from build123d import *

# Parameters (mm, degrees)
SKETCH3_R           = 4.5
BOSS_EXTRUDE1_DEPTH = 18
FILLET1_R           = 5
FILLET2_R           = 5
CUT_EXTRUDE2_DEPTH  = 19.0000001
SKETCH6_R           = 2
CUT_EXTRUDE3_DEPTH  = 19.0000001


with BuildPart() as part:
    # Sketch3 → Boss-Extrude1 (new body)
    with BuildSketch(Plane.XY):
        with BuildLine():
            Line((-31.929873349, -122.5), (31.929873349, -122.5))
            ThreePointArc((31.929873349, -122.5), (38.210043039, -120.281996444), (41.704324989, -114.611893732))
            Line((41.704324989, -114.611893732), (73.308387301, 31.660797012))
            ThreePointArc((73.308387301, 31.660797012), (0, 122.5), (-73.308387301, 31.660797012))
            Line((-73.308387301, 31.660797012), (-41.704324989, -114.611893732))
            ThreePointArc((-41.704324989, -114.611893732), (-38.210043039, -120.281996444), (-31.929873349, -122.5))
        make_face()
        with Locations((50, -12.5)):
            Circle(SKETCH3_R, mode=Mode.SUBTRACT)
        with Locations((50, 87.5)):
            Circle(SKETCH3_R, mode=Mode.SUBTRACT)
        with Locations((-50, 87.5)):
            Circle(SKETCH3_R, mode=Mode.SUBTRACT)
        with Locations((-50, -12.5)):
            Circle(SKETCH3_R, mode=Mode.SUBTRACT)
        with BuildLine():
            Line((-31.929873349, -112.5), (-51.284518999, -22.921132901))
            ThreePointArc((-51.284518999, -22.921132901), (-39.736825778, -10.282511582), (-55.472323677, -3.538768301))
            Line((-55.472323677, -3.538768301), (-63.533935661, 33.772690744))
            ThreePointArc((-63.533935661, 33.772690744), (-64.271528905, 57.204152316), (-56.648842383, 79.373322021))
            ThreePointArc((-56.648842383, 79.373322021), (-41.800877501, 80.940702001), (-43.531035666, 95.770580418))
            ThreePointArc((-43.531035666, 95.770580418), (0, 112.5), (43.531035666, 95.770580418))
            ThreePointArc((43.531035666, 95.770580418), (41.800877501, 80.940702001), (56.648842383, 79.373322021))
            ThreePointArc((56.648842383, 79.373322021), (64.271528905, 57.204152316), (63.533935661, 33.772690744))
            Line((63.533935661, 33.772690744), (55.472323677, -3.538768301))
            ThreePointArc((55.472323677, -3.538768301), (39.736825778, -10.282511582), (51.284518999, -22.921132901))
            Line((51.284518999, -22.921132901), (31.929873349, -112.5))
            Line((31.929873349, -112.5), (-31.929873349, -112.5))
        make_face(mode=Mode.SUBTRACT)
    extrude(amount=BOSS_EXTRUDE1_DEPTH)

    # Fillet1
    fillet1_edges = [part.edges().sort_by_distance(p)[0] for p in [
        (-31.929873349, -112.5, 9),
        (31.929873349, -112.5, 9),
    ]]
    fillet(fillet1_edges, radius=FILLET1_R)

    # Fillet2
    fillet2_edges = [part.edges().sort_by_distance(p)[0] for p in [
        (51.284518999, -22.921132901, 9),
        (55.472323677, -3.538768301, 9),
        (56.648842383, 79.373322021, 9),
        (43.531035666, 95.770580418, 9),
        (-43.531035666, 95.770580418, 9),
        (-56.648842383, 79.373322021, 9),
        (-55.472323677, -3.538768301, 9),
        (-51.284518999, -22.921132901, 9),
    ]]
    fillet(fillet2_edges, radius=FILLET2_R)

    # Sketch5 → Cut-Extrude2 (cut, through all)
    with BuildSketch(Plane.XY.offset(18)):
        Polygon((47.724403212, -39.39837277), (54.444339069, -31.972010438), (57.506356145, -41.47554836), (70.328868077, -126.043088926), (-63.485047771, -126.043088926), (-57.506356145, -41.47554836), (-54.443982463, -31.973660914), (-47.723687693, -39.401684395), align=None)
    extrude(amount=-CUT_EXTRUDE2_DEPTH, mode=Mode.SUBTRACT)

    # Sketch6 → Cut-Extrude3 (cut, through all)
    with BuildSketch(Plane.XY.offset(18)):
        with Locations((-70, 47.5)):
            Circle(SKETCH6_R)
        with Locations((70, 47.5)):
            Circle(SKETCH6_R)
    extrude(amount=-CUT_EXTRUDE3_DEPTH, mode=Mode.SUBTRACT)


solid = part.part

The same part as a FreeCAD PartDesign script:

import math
import FreeCAD as App
import Part
import Sketcher

V = App.Vector
Q = App.Units.Quantity


def edges_at(feature, points):
    """Names of the edges that pass closest to the given points."""
    edges = feature.Shape.Edges
    near = lambda p: min(range(len(edges)), key=lambda i: edges[i].distToShape(Part.Vertex(*p))[0])
    return sorted({f"Edge{near(p) + 1}" for p in points})

doc = App.newDocument("Part")
body = doc.addObject("PartDesign::Body", "Body")

sketch1 = body.newObject("Sketcher::SketchObject", "Sketch")
sketch1.AttachmentSupport = (doc.getObject("XY_Plane"), [""])
sketch1.MapMode = "FlatFace"
sketch1.addGeometry([
    Part.LineSegment(V(-31.929873, -122.5, 0), V(31.929873, -122.5, 0)),
    Part.ArcOfCircle(Part.Circle(V(31.929873, -112.5, 0), V(0, 0, 1), 10), math.radians(-90), math.radians(-12.192062)),
    Part.LineSegment(V(41.704325, -114.611894, 0), V(73.308387, 31.660797, 0)),
    Part.ArcOfCircle(Part.Circle(V(0, 47.5, 0), V(0, 0, 1), 75), math.radians(-12.192062), math.radians(192.192062)),
    Part.LineSegment(V(-73.308387, 31.660797, 0), V(-41.704325, -114.611894, 0)),
    Part.ArcOfCircle(Part.Circle(V(-31.929873, -112.5, 0), V(0, 0, 1), 10), math.radians(-167.807938), math.radians(-90)),
    Part.Circle(V(-50, -12.5, 0), V(0, 0, 1), 4.5),
    Part.LineSegment(V(31.929873, -112.5, 0), V(-31.929873, -112.5, 0)),
    Part.LineSegment(V(-31.929873, -112.5, 0), V(-51.284519, -22.921133, 0)),
    Part.ArcOfCircle(Part.Circle(V(-50, -12.5, 0), V(0, 0, 1), 10.5), math.radians(-97.02689), math.radians(121.411013)),
    Part.LineSegment(V(-55.472324, -3.538768, 0), V(-63.533936, 33.772691, 0)),
    Part.ArcOfCircle(Part.Circle(V(0, 47.5, 0), V(0, 0, 1), 65), math.radians(150.635833), math.radians(192.192062)),
    Part.ArcOfCircle(Part.Circle(V(-50, 87.5, 0), V(0, 0, 1), 10.5), math.radians(-129.288318), math.radians(51.968702)),
    Part.ArcOfCircle(Part.Circle(V(0, 47.5, 0), V(0, 0, 1), 65), math.radians(47.955449), math.radians(132.044551)),
    Part.ArcOfCircle(Part.Circle(V(50, 87.5, 0), V(0, 0, 1), 10.5), math.radians(128.031298), math.radians(309.288318)),
    Part.ArcOfCircle(Part.Circle(V(0, 47.5, 0), V(0, 0, 1), 65), math.radians(-12.192062), math.radians(29.364167)),
    Part.LineSegment(V(63.533936, 33.772691, 0), V(55.472324, -3.538768, 0)),
    Part.ArcOfCircle(Part.Circle(V(50, -12.5, 0), V(0, 0, 1), 10.5), math.radians(58.588987), math.radians(277.02689)),
    Part.LineSegment(V(51.284519, -22.921133, 0), V(31.929873, -112.5, 0)),
    Part.Circle(V(50, -12.5, 0), V(0, 0, 1), 4.5),
    Part.Circle(V(-50, 87.5, 0), V(0, 0, 1), 4.5),
    Part.Circle(V(50, 87.5, 0), V(0, 0, 1), 4.5),
], False)
sketch1.addConstraint([
    Sketcher.Constraint("Tangent", 0, 2, 1, 1),
    Sketcher.Constraint("Tangent", 1, 2, 2, 1),
    Sketcher.Constraint("Tangent", 2, 2, 3, 1),
    Sketcher.Constraint("Tangent", 3, 2, 4, 1),
    Sketcher.Constraint("Tangent", 4, 2, 5, 1),
    Sketcher.Constraint("Tangent", 5, 2, 0, 1),
    Sketcher.Constraint("Coincident", 7, 2, 8, 1),
    Sketcher.Constraint("Coincident", 8, 2, 9, 1),
    Sketcher.Constraint("Coincident", 9, 2, 10, 1),
    Sketcher.Constraint("Tangent", 10, 2, 11, 2),
    Sketcher.Constraint("Coincident", 11, 1, 12, 1),
    Sketcher.Constraint("Coincident", 12, 2, 13, 2),
    Sketcher.Constraint("Coincident", 13, 1, 14, 1),
    Sketcher.Constraint("Coincident", 14, 2, 15, 2),
    Sketcher.Constraint("Tangent", 15, 1, 16, 1),
    Sketcher.Constraint("Coincident", 16, 2, 17, 1),
    Sketcher.Constraint("Coincident", 17, 2, 18, 1),
    Sketcher.Constraint("Coincident", 18, 2, 7, 1),
    Sketcher.Constraint("Horizontal", 0),
    Sketcher.Constraint("Horizontal", 7),
    Sketcher.Constraint("Coincident", 9, 3, 6, 3),
    Sketcher.Constraint("Coincident", 11, 3, 3, 3),
    Sketcher.Constraint("Coincident", 13, 3, 3, 3),
    Sketcher.Constraint("Coincident", 15, 3, 3, 3),
    Sketcher.Constraint("Coincident", 19, 3, 17, 3),
    Sketcher.Constraint("Coincident", 20, 3, 12, 3),
    Sketcher.Constraint("Coincident", 21, 3, 14, 3),
    Sketcher.Constraint("Coincident", 7, 2, 5, 3),
    Sketcher.Constraint("Coincident", 18, 2, 1, 3),
    Sketcher.Constraint("Equal", 9, 12),
    Sketcher.Constraint("Equal", 11, 13),
    Sketcher.Constraint("Equal", 12, 14),
    Sketcher.Constraint("Equal", 13, 15),
    Sketcher.Constraint("Equal", 14, 17),
    Sketcher.Constraint("Equal", 6, 19),
    Sketcher.Constraint("Equal", 19, 20),
    Sketcher.Constraint("Equal", 20, 21),
    Sketcher.Constraint("Symmetric", 12, 3, 14, 3, -2),
    Sketcher.Constraint("Symmetric", 6, 3, 17, 3, -2),
    Sketcher.Constraint("Symmetric", 2, 2, 3, 2, -2),
    Sketcher.Constraint("Parallel", 4, 8),
    Sketcher.Constraint("Parallel", 8, 10),
    Sketcher.Constraint("Parallel", 2, 16),
    Sketcher.Constraint("Parallel", 16, 18),
    Sketcher.Constraint("Vertical", 9, 3, 12, 3),
    Sketcher.Constraint("Diameter", 6, Q("9 mm")),
    Sketcher.Constraint("Radius", 1, Q("10 mm")),
    Sketcher.Constraint("Radius", 3, Q("75 mm")),
    Sketcher.Constraint("Radius", 11, Q("65 mm")),
    Sketcher.Constraint("Radius", 9, Q("10.5 mm")),
    Sketcher.Constraint("DistanceX", 6, 3, -1, 1, Q("50 mm")),
    Sketcher.Constraint("DistanceY", 1, 3, 3, 3, Q("160 mm")),
    Sketcher.Constraint("DistanceY", 6, 3, 3, 3, Q("60 mm")),
    Sketcher.Constraint("DistanceY", 3, 3, 12, 3, Q("40 mm")),
    Sketcher.Constraint("DistanceY", 1, 3, -1, 1, Q("112.5 mm")),
    Sketcher.Constraint("DistanceX", 5, 3, 1, 2, Q("73.634198 mm")),
])
pad1 = body.newObject("PartDesign::Pad", "Pad")
pad1.Profile = sketch1
pad1.Length = 18
doc.recompute()

fillet = body.newObject("PartDesign::Fillet", "Fillet")
fillet.Base = (pad1, edges_at(pad1, [(-31.93, -112.5, 9), (31.93, -112.5, 9)]))
fillet.Radius = 5
doc.recompute()

fillet2 = body.newObject("PartDesign::Fillet", "Fillet001")
fillet2.Base = (fillet, edges_at(fillet, [
    (51.285, -22.921, 9),
    (55.472, -3.539, 9),
    (56.649, 79.373, 9),
    (43.531, 95.771, 9),
    (-43.531, 95.771, 9),
    (-56.649, 79.373, 9),
    (-55.472, -3.539, 9),
    (-51.285, -22.921, 9),
]))
fillet2.Radius = 5

sketch2 = body.newObject("Sketcher::SketchObject", "Sketch001")
sketch2.AttachmentSupport = (doc.getObject("XY_Plane"), [""])
sketch2.MapMode = "FlatFace"
sketch2.AttachmentOffset = App.Placement(V(0, 0, 18), App.Rotation())
sketch2.addGeometry([
    Part.LineSegment(V(54.444339, -31.97201, 0), V(47.724403, -39.398373, 0)),
    Part.LineSegment(V(47.724403, -39.398373, 0), V(-47.723688, -39.401684, 0)),
    Part.LineSegment(V(-47.723688, -39.401684, 0), V(-54.443982, -31.973661, 0)),
    Part.LineSegment(V(-54.443982, -31.973661, 0), V(-57.506356, -41.475548, 0)),
    Part.LineSegment(V(-57.506356, -41.475548, 0), V(-63.485048, -126.043089, 0)),
    Part.LineSegment(V(-63.485048, -126.043089, 0), V(70.328868, -126.043089, 0)),
    Part.LineSegment(V(70.328868, -126.043089, 0), V(57.506356, -41.475548, 0)),
    Part.LineSegment(V(57.506356, -41.475548, 0), V(54.444339, -31.97201, 0)),
], False)
sketch2.addConstraint([
    Sketcher.Constraint("Coincident", 0, 2, 1, 1),
    Sketcher.Constraint("Coincident", 1, 2, 2, 1),
    Sketcher.Constraint("Coincident", 2, 2, 3, 1),
    Sketcher.Constraint("Coincident", 3, 2, 4, 1),
    Sketcher.Constraint("Coincident", 4, 2, 5, 1),
    Sketcher.Constraint("Coincident", 5, 2, 6, 1),
    Sketcher.Constraint("Coincident", 6, 2, 7, 1),
    Sketcher.Constraint("Coincident", 7, 2, 0, 1),
    Sketcher.Constraint("Horizontal", 5),
    Sketcher.Constraint("Symmetric", 3, 2, 6, 2, -2),
    Sketcher.Constraint("Distance", 1, Q("95.448091 mm")),
    Sketcher.Constraint("Distance", 2, Q("10.01688 mm")),
    Sketcher.Constraint("Distance", 6, Q("85.53412 mm")),
    Sketcher.Constraint("DistanceX", 5, 1, 5, 2, Q("133.813916 mm")),
    Sketcher.Constraint("DistanceY", 2, 2, -1, 1, Q("31.973661 mm")),
    Sketcher.Constraint("DistanceY", 3, 2, -1, 1, Q("41.475548 mm")),
    Sketcher.Constraint("DistanceY", 4, 2, -1, 1, Q("126.043089 mm")),
    Sketcher.Constraint("DistanceX", -1, 1, 5, 2, Q("70.328868 mm")),
    Sketcher.Constraint("DistanceX", -1, 1, 7, 2, Q("54.444339 mm")),
    Sketcher.Constraint("DistanceY", 7, 2, -1, 1, Q("31.97201 mm")),
    Sketcher.Constraint("DistanceY", 1, 2, 0, 2, Q("0.003312 mm")),
    Sketcher.Constraint("DistanceY", 0, 2, 2, 2, Q("7.424712 mm")),
    Sketcher.Constraint("DistanceX", 3, 2, 1, 2, Q("9.782668 mm")),
])
pocket1 = body.newObject("PartDesign::Pocket", "Pocket")
pocket1.Profile = sketch2
pocket1.Type = "ThroughAll"

sketch3 = body.newObject("Sketcher::SketchObject", "Sketch002")
sketch3.AttachmentSupport = (doc.getObject("XY_Plane"), [""])
sketch3.MapMode = "FlatFace"
sketch3.AttachmentOffset = App.Placement(V(0, 0, 18), App.Rotation())
sketch3.addGeometry([
    Part.Circle(V(-70, 47.5, 0), V(0, 0, 1), 2),
    Part.Circle(V(70, 47.5, 0), V(0, 0, 1), 2),
], False)
sketch3.addConstraint([
    Sketcher.Constraint("Equal", 0, 1),
    Sketcher.Constraint("Symmetric", 0, 3, 1, 3, -2),
    Sketcher.Constraint("Diameter", 0, Q("4 mm")),
    Sketcher.Constraint("DistanceX", 0, 3, -1, 1, Q("70 mm")),
    Sketcher.Constraint("DistanceY", -1, 1, 0, 3, Q("47.5 mm")),
])
pocket2 = body.newObject("PartDesign::Pocket", "Pocket001")
pocket2.Profile = sketch3
pocket2.Type = "ThroughAll"

doc.recompute()
